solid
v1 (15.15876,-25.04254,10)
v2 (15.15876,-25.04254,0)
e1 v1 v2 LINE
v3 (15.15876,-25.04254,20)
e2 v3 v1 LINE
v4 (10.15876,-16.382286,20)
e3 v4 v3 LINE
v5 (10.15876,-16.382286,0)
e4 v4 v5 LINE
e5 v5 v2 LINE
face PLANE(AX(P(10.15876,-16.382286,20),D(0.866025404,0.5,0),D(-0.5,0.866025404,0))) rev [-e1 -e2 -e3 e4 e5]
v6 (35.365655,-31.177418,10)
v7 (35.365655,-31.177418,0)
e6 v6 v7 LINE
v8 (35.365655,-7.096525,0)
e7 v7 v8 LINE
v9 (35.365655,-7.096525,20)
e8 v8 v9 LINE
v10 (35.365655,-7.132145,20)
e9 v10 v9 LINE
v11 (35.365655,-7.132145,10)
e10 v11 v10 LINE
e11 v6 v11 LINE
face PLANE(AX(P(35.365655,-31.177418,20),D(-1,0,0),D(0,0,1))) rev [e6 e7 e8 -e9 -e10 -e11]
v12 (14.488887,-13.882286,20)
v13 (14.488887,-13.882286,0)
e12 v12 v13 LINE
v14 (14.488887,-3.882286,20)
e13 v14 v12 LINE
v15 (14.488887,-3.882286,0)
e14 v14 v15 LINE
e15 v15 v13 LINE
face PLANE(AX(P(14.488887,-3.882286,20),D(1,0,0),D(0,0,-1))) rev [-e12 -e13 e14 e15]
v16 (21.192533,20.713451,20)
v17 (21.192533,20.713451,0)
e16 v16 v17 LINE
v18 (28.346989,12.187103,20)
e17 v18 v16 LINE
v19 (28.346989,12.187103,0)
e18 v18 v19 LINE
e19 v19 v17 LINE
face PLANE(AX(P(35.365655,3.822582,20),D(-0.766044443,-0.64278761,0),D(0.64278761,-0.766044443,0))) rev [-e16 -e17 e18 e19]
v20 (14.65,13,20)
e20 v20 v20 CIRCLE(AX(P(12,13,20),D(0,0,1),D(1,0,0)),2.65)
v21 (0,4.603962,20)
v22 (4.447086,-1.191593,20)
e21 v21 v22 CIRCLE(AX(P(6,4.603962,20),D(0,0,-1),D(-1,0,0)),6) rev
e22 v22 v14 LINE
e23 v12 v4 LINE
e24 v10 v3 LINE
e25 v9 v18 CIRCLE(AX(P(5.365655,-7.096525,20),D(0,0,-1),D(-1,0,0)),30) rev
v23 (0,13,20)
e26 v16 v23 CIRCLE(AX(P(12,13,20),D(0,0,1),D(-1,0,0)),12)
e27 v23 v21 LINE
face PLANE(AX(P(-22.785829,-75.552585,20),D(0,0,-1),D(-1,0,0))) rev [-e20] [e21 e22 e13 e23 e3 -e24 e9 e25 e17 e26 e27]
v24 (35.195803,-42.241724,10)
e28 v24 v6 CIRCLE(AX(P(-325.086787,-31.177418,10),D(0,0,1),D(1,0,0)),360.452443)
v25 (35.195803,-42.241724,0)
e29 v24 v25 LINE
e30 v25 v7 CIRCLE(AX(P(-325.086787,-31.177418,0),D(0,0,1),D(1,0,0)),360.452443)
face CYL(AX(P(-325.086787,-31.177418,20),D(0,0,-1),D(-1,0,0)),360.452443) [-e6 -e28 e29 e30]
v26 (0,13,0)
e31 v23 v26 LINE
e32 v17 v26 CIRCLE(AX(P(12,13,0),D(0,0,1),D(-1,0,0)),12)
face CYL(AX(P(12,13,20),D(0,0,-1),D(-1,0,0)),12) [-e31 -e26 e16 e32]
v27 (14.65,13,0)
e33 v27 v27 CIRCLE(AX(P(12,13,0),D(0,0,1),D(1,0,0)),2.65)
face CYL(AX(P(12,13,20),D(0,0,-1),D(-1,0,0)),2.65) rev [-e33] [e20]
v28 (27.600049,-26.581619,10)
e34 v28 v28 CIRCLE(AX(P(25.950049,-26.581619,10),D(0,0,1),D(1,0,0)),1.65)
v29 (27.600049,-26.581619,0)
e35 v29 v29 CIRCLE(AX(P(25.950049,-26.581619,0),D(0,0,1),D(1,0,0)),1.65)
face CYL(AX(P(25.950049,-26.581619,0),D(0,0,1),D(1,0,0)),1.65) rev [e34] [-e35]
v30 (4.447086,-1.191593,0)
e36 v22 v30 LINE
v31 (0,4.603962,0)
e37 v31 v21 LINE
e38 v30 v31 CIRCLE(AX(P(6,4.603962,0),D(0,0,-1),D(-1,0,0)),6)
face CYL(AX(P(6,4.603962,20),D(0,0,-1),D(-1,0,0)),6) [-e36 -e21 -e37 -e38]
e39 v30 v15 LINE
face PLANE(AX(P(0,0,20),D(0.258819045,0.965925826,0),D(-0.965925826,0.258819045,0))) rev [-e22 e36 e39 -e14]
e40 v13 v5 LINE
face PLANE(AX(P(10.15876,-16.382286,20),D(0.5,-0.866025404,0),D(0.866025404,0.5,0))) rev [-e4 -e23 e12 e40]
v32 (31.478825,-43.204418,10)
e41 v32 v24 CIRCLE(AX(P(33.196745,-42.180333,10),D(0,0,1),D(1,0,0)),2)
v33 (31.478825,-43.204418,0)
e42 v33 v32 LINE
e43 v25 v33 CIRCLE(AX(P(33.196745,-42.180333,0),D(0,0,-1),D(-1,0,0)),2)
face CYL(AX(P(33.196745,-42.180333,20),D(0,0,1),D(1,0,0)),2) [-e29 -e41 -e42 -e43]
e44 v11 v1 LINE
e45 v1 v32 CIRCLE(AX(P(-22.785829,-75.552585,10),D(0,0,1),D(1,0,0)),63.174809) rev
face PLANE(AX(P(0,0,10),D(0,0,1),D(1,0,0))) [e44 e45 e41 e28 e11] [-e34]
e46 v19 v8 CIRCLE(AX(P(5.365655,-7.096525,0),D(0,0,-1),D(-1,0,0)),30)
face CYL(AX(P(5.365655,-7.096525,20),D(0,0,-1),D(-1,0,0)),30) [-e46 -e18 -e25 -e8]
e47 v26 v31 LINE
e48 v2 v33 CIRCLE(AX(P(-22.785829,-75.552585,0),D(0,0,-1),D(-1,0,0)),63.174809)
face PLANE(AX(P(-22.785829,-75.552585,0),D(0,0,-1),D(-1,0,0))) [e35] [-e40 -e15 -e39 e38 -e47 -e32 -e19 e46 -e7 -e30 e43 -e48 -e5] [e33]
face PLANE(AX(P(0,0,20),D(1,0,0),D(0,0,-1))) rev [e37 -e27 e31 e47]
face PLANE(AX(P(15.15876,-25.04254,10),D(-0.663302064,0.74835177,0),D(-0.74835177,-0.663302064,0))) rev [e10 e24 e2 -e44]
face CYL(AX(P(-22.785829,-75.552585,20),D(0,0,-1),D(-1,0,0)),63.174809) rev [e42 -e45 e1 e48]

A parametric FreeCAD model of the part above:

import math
import FreeCAD as App
import Part
import Sketcher

V = App.Vector
Q = App.Units.Quantity


def edges_at(feature, points):
    """Names of the edges that pass closest to the given points."""
    edges = feature.Shape.Edges
    near = lambda p: min(range(len(edges)), key=lambda i: edges[i].distToShape(Part.Vertex(*p))[0])
    return sorted({f"Edge{near(p) + 1}" for p in points})

doc = App.newDocument("Part")
body = doc.addObject("PartDesign::Body", "Body")

# Sketch on XY plane
sketch1 = body.newObject("Sketcher::SketchObject", "Sketch")
sketch1.AttachmentSupport = (doc.getObject("XY_Plane"), [""])
sketch1.MapMode = "FlatFace"
sketch1.addGeometry(Part.LineSegment(V(0, 13, 0), V(0, 0, 0)), False)
sketch1.addGeometry(Part.LineSegment(V(0, 0, 0), V(14.5, -3.9, 0)), False)
sketch1.addGeometry(Part.LineSegment(V(14.5, -3.9, 0), V(14.5, -13.9, 0)), False)
sketch1.addGeometry(Part.LineSegment(V(14.5, -13.9, 0), V(10.2, -16.4, 0)), False)
sketch1.addGeometry(Part.LineSegment(V(10.2, -16.4, 0), V(15.2, -25, 0)), False)
sketch1.addGeometry(Part.ArcOfCircle(Part.Circle(V(-22.8, -75.6, 0), V(0, 0, 1), 63.2), math.radians(24), math.radians(53)), False)
sketch1.addGeometry(Part.ArcOfCircle(Part.Circle(V(-325.1, -31.2, 0), V(0, 0, 1), 360.5), math.radians(-2.96), math.radians(0)), False)
sketch1.addGeometry(Part.LineSegment(V(35.4, -31.2, 0), V(35.4, 3.8, 0)), False)
sketch1.addGeometry(Part.LineSegment(V(35.4, 3.8, 0), V(21.2, 20.7, 0)), False)
sketch1.addGeometry(Part.ArcOfCircle(Part.Circle(V(12, 13, 0), V(0, 0, 1), 12), math.radians(40), math.radians(180)), False)
sketch1.addGeometry(Part.Circle(V(12, 13, 0), V(0, 0, 1), 2.6), False)
sketch1.addConstraint(Sketcher.Constraint("Coincident", 0, 2, 1, 1))
sketch1.addConstraint(Sketcher.Constraint("Coincident", 1, 2, 2, 1))
sketch1.addConstraint(Sketcher.Constraint("Coincident", 2, 2, 3, 1))
sketch1.addConstraint(Sketcher.Constraint("Coincident", 3, 2, 4, 1))
sketch1.addConstraint(Sketcher.Constraint("Coincident", 4, 2, 5, 2))
sketch1.addConstraint(Sketcher.Constraint("Coincident", 5, 1, 6, 1))
sketch1.addConstraint(Sketcher.Constraint("Tangent", 6, 2, 7, 1))
sketch1.addConstraint(Sketcher.Constraint("Coincident", 7, 2, 8, 1))
sketch1.addConstraint(Sketcher.Constraint("Tangent", 8, 2, 9, 1))
sketch1.addConstraint(Sketcher.Constraint("Tangent", 9, 2, 0, 1))
sketch1.addConstraint(Sketcher.Constraint("Vertical", 0))
sketch1.addConstraint(Sketcher.Constraint("Vertical", 2))
sketch1.addConstraint(Sketcher.Constraint("Vertical", 7))
sketch1.addConstraint(Sketcher.Constraint("Coincident", 0, 2, -1, 1))
sketch1.addConstraint(Sketcher.Constraint("Coincident", 10, 3, 9, 3))
sketch1.addConstraint(Sketcher.Constraint("Perpendicular", 3, 4))
sketch1.addConstraint(Sketcher.Constraint("Radius", 9, 12.0))
sketch1.addConstraint(Sketcher.Constraint("Diameter", 10, 5.3))
sketch1.addConstraint(Sketcher.Constraint("DistanceY", 0, 2, 0, 1, 13.0))
sketch1.addConstraint(Sketcher.Constraint("DistanceY", 2, 2, 2, 1, 10.0))
sketch1.addConstraint(Sketcher.Constraint("DistanceY", 7, 1, 7, 2, 35.0))
sketch1.addConstraint(Sketcher.Constraint("Angle", 1, Q("-15 deg")))
sketch1.addConstraint(Sketcher.Constraint("Angle", 3, Q("-150 deg")))
sketch1.addConstraint(Sketcher.Constraint("Angle", 8, Q("130 deg")))
sketch1.addConstraint(Sketcher.Constraint("Distance", 1, 15.0))
sketch1.addConstraint(Sketcher.Constraint("Distance", 3, 5.0))
sketch1.addConstraint(Sketcher.Constraint("Distance", 4, 10.0))
sketch1.addConstraint(Sketcher.Constraint("Radius", 5, 63.174809))
sketch1.addConstraint(Sketcher.Constraint("Radius", 6, 360.452444))
sketch1.addConstraint(Sketcher.Constraint("DistanceY", 5, 3, 1, 2, 71.6703))
sketch1.addConstraint(Sketcher.Constraint("DistanceX", 2, 2, 5, 1, 20.3972))
pad1 = body.newObject("PartDesign::Pad", "Pad")
pad1.Profile = sketch1
pad1.Length = 20

# Sketch on XY plane
sketch2 = body.newObject("Sketcher::SketchObject", "Sketch001")
sketch2.AttachmentSupport = (doc.getObject("XY_Plane"), [""])
sketch2.MapMode = "FlatFace"
sketch2.AttachmentOffset = App.Placement(V(0, 0, 20), App.Rotation())
sketch2.addGeometry(Part.LineSegment(V(35, -7, 0), V(15, -25, 0)), False)
sketch2.addGeometry(Part.LineSegment(V(15, -25, 0), V(14, -71, 0)), False)
sketch2.addGeometry(Part.LineSegment(V(14, -71, 0), V(35, -71, 0)), False)
sketch2.addGeometry(Part.LineSegment(V(35, -71, 0), V(35, -7, 0)), False)
sketch2.addConstraint(Sketcher.Constraint("Coincident", 0, 2, 1, 1))
sketch2.addConstraint(Sketcher.Constraint("Coincident", 1, 2, 2, 1))
sketch2.addConstraint(Sketcher.Constraint("Coincident", 2, 2, 3, 1))
sketch2.addConstraint(Sketcher.Constraint("Coincident", 3, 2, 0, 1))
sketch2.addConstraint(Sketcher.Constraint("Horizontal", 2))
sketch2.addConstraint(Sketcher.Constraint("Vertical", 3))
sketch2.addConstraint(Sketcher.Constraint("Distance", 1, 45.866499))
sketch2.addConstraint(Sketcher.Constraint("DistanceX", 2, 1, 2, 2, 21.606873))
sketch2.addConstraint(Sketcher.Constraint("DistanceY", 3, 1, 3, 2, 63.755523))
sketch2.addConstraint(Sketcher.Constraint("DistanceX", -1, 1, 0, 2, 15.15876))
sketch2.addConstraint(Sketcher.Constraint("DistanceY", 0, 2, -1, 1, 25.04254))
sketch2.addConstraint(Sketcher.Constraint("DistanceY", 1, 2, -1, 1, 70.887668))
pocket1 = body.newObject("PartDesign::Pocket", "Pocket")
pocket1.Profile = sketch2
pocket1.Length = 10
doc.recompute()

fillet = body.newObject("PartDesign::Fillet", "Fillet")
fillet.Base = (pocket1, edges_at(pocket1, [(34.886, -49.765, 5)]))
fillet.Radius = 2
doc.recompute()

fillet2 = body.newObject("PartDesign::Fillet", "Fillet001")
fillet2.Base = (fillet, edges_at(fillet, [(35.366, 3.823, 10)]))
fillet2.Radius = 30

# Sketch on XY plane
sketch3 = body.newObject("Sketcher::SketchObject", "Sketch002")
sketch3.AttachmentSupport = (doc.getObject("XY_Plane"), [""])
sketch3.MapMode = "FlatFace"
sketch3.AttachmentOffset = App.Placement(V(0, 0, 10), App.Rotation())
sketch3.addGeometry(Part.Circle(V(26, -26.6, 0), V(0, 0, 1), 1.6), False)
sketch3.addConstraint(Sketcher.Constraint("Diameter", 0, 3.3))
sketch3.addConstraint(Sketcher.Constraint("DistanceX", -1, 1, 0, 3, 25.950049))
sketch3.addConstraint(Sketcher.Constraint("DistanceY", 0, 3, -1, 1, 26.581619))
pocket2 = body.newObject("PartDesign::Pocket", "Pocket001")
pocket2.Profile = sketch3
pocket2.Type = "ThroughAll"
doc.recompute()

fillet3 = body.newObject("PartDesign::Fillet", "Fillet002")
fillet3.Base = (pocket2, edges_at(pocket2, [(0, 0, 10)]))
fillet3.Radius = 6

doc.recompute()
